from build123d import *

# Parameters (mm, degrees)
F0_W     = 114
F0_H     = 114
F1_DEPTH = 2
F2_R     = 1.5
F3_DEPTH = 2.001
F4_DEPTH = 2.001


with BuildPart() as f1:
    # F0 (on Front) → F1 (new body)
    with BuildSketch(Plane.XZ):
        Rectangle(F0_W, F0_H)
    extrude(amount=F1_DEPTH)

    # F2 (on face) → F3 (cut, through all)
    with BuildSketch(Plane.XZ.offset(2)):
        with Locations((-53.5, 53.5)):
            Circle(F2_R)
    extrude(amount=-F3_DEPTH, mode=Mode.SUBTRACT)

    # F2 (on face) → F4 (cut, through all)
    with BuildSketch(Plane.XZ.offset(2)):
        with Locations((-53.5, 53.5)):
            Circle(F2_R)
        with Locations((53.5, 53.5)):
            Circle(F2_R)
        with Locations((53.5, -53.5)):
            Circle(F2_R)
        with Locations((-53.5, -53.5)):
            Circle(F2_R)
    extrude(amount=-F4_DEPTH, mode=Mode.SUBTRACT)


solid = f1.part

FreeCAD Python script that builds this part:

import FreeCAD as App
import Part
import Sketcher

V = App.Vector
Q = App.Units.Quantity


def add_polygon(sketch, points):
    """Adds a closed chain of lines whose ends are joined by coincident constraints."""
    first, n = sketch.GeometryCount, len(points)
    for a, b in zip(points, points[1:] + points[:1]):
        sketch.addGeometry(Part.LineSegment(App.Vector(*a, 0), App.Vector(*b, 0)), False)
    for i in range(n):
        sketch.addConstraint(Sketcher.Constraint("Coincident", first + i, 2, first + (i + 1) % n, 1))

doc = App.newDocument("Part")
body = doc.addObject("PartDesign::Body", "Body")

sketch1 = body.newObject("Sketcher::SketchObject", "Sketch")
sketch1.AttachmentSupport = (doc.getObject("XZ_Plane"), [""])
sketch1.MapMode = "FlatFace"
add_polygon(sketch1, [(-57, 57), (-57, -57), (57, -57), (57, 57)])
sketch1.addConstraint(Sketcher.Constraint("Vertical", 0))
sketch1.addConstraint(Sketcher.Constraint("Horizontal", 1))
sketch1.addConstraint(Sketcher.Constraint("Vertical", 2))
sketch1.addConstraint(Sketcher.Constraint("Horizontal", 3))
sketch1.addConstraint(Sketcher.Constraint("Symmetric", 0, 2, 2, 2, -1, 1))
sketch1.addConstraint(Sketcher.Constraint("Equal", 3, 0))
sketch1.addConstraint(Sketcher.Constraint("DistanceX", 1, 1, 1, 2, Q("114 mm")))
pad1 = body.newObject("PartDesign::Pad", "Pad")
pad1.Profile = sketch1
pad1.Length = 2

sketch2 = body.newObject("Sketcher::SketchObject", "Sketch001")
sketch2.AttachmentSupport = (doc.getObject("XZ_Plane"), [""])
sketch2.MapMode = "FlatFace"
sketch2.AttachmentOffset = App.Placement(V(0, 0, 2), App.Rotation())
sketch2.addGeometry(Part.Circle(V(-53.5, 53.5, 0), V(0, 0, 1), 1.5), False)
sketch2.addConstraint(Sketcher.Constraint("Diameter", 0, Q("3 mm")))
sketch2.addConstraint(Sketcher.Constraint("DistanceX", 0, 3, -1, 1, Q("53.5 mm")))
sketch2.addConstraint(Sketcher.Constraint("DistanceY", -1, 1, 0, 3, Q("53.5 mm")))
pocket1 = body.newObject("PartDesign::Pocket", "Pocket")
pocket1.Profile = sketch2
pocket1.Type = "ThroughAll"

sketch3 = body.newObject("Sketcher::SketchObject", "Sketch002")
sketch3.AttachmentSupport = (doc.getObject("XZ_Plane"), [""])
sketch3.MapMode = "FlatFace"
sketch3.AttachmentOffset = App.Placement(V(0, 0, 2), App.Rotation())
sketch3.addGeometry(Part.Circle(V(-53.5, 53.5, 0), V(0, 0, 1), 1.5), False)
sketch3.addGeometry(Part.Circle(V(53.5, 53.5, 0), V(0, 0, 1), 1.5), False)
sketch3.addGeometry(Part.Circle(V(53.5, -53.5, 0), V(0, 0, 1), 1.5), False)
sketch3.addGeometry(Part.Circle(V(-53.5, -53.5, 0), V(0, 0, 1), 1.5), False)
sketch3.addConstraint(Sketcher.Constraint("Equal", 0, 1))
sketch3.addConstraint(Sketcher.Constraint("Equal", 1, 2))
sketch3.addConstraint(Sketcher.Constraint("Equal", 2, 3))
sketch3.addConstraint(Sketcher.Constraint("Symmetric", 0, 3, 2, 3, -1, 1))
sketch3.addConstraint(Sketcher.Constraint("Symmetric", 1, 3, 3, 3, -1, 1))
sketch3.addConstraint(Sketcher.Constraint("Symmetric", 0, 3, 1, 3, -2))
sketch3.addConstraint(Sketcher.Constraint("Diameter", 0, Q("3 mm")))
sketch3.addConstraint(Sketcher.Constraint("DistanceX", 0, 3, 1, 3, Q("107 mm")))
sketch3.addConstraint(Sketcher.Constraint("DistanceY", 2, 3, 1, 3, Q("107 mm")))
pocket2 = body.newObject("PartDesign::Pocket", "Pocket001")
pocket2.Profile = sketch3
pocket2.Type = "ThroughAll"

doc.recompute()
